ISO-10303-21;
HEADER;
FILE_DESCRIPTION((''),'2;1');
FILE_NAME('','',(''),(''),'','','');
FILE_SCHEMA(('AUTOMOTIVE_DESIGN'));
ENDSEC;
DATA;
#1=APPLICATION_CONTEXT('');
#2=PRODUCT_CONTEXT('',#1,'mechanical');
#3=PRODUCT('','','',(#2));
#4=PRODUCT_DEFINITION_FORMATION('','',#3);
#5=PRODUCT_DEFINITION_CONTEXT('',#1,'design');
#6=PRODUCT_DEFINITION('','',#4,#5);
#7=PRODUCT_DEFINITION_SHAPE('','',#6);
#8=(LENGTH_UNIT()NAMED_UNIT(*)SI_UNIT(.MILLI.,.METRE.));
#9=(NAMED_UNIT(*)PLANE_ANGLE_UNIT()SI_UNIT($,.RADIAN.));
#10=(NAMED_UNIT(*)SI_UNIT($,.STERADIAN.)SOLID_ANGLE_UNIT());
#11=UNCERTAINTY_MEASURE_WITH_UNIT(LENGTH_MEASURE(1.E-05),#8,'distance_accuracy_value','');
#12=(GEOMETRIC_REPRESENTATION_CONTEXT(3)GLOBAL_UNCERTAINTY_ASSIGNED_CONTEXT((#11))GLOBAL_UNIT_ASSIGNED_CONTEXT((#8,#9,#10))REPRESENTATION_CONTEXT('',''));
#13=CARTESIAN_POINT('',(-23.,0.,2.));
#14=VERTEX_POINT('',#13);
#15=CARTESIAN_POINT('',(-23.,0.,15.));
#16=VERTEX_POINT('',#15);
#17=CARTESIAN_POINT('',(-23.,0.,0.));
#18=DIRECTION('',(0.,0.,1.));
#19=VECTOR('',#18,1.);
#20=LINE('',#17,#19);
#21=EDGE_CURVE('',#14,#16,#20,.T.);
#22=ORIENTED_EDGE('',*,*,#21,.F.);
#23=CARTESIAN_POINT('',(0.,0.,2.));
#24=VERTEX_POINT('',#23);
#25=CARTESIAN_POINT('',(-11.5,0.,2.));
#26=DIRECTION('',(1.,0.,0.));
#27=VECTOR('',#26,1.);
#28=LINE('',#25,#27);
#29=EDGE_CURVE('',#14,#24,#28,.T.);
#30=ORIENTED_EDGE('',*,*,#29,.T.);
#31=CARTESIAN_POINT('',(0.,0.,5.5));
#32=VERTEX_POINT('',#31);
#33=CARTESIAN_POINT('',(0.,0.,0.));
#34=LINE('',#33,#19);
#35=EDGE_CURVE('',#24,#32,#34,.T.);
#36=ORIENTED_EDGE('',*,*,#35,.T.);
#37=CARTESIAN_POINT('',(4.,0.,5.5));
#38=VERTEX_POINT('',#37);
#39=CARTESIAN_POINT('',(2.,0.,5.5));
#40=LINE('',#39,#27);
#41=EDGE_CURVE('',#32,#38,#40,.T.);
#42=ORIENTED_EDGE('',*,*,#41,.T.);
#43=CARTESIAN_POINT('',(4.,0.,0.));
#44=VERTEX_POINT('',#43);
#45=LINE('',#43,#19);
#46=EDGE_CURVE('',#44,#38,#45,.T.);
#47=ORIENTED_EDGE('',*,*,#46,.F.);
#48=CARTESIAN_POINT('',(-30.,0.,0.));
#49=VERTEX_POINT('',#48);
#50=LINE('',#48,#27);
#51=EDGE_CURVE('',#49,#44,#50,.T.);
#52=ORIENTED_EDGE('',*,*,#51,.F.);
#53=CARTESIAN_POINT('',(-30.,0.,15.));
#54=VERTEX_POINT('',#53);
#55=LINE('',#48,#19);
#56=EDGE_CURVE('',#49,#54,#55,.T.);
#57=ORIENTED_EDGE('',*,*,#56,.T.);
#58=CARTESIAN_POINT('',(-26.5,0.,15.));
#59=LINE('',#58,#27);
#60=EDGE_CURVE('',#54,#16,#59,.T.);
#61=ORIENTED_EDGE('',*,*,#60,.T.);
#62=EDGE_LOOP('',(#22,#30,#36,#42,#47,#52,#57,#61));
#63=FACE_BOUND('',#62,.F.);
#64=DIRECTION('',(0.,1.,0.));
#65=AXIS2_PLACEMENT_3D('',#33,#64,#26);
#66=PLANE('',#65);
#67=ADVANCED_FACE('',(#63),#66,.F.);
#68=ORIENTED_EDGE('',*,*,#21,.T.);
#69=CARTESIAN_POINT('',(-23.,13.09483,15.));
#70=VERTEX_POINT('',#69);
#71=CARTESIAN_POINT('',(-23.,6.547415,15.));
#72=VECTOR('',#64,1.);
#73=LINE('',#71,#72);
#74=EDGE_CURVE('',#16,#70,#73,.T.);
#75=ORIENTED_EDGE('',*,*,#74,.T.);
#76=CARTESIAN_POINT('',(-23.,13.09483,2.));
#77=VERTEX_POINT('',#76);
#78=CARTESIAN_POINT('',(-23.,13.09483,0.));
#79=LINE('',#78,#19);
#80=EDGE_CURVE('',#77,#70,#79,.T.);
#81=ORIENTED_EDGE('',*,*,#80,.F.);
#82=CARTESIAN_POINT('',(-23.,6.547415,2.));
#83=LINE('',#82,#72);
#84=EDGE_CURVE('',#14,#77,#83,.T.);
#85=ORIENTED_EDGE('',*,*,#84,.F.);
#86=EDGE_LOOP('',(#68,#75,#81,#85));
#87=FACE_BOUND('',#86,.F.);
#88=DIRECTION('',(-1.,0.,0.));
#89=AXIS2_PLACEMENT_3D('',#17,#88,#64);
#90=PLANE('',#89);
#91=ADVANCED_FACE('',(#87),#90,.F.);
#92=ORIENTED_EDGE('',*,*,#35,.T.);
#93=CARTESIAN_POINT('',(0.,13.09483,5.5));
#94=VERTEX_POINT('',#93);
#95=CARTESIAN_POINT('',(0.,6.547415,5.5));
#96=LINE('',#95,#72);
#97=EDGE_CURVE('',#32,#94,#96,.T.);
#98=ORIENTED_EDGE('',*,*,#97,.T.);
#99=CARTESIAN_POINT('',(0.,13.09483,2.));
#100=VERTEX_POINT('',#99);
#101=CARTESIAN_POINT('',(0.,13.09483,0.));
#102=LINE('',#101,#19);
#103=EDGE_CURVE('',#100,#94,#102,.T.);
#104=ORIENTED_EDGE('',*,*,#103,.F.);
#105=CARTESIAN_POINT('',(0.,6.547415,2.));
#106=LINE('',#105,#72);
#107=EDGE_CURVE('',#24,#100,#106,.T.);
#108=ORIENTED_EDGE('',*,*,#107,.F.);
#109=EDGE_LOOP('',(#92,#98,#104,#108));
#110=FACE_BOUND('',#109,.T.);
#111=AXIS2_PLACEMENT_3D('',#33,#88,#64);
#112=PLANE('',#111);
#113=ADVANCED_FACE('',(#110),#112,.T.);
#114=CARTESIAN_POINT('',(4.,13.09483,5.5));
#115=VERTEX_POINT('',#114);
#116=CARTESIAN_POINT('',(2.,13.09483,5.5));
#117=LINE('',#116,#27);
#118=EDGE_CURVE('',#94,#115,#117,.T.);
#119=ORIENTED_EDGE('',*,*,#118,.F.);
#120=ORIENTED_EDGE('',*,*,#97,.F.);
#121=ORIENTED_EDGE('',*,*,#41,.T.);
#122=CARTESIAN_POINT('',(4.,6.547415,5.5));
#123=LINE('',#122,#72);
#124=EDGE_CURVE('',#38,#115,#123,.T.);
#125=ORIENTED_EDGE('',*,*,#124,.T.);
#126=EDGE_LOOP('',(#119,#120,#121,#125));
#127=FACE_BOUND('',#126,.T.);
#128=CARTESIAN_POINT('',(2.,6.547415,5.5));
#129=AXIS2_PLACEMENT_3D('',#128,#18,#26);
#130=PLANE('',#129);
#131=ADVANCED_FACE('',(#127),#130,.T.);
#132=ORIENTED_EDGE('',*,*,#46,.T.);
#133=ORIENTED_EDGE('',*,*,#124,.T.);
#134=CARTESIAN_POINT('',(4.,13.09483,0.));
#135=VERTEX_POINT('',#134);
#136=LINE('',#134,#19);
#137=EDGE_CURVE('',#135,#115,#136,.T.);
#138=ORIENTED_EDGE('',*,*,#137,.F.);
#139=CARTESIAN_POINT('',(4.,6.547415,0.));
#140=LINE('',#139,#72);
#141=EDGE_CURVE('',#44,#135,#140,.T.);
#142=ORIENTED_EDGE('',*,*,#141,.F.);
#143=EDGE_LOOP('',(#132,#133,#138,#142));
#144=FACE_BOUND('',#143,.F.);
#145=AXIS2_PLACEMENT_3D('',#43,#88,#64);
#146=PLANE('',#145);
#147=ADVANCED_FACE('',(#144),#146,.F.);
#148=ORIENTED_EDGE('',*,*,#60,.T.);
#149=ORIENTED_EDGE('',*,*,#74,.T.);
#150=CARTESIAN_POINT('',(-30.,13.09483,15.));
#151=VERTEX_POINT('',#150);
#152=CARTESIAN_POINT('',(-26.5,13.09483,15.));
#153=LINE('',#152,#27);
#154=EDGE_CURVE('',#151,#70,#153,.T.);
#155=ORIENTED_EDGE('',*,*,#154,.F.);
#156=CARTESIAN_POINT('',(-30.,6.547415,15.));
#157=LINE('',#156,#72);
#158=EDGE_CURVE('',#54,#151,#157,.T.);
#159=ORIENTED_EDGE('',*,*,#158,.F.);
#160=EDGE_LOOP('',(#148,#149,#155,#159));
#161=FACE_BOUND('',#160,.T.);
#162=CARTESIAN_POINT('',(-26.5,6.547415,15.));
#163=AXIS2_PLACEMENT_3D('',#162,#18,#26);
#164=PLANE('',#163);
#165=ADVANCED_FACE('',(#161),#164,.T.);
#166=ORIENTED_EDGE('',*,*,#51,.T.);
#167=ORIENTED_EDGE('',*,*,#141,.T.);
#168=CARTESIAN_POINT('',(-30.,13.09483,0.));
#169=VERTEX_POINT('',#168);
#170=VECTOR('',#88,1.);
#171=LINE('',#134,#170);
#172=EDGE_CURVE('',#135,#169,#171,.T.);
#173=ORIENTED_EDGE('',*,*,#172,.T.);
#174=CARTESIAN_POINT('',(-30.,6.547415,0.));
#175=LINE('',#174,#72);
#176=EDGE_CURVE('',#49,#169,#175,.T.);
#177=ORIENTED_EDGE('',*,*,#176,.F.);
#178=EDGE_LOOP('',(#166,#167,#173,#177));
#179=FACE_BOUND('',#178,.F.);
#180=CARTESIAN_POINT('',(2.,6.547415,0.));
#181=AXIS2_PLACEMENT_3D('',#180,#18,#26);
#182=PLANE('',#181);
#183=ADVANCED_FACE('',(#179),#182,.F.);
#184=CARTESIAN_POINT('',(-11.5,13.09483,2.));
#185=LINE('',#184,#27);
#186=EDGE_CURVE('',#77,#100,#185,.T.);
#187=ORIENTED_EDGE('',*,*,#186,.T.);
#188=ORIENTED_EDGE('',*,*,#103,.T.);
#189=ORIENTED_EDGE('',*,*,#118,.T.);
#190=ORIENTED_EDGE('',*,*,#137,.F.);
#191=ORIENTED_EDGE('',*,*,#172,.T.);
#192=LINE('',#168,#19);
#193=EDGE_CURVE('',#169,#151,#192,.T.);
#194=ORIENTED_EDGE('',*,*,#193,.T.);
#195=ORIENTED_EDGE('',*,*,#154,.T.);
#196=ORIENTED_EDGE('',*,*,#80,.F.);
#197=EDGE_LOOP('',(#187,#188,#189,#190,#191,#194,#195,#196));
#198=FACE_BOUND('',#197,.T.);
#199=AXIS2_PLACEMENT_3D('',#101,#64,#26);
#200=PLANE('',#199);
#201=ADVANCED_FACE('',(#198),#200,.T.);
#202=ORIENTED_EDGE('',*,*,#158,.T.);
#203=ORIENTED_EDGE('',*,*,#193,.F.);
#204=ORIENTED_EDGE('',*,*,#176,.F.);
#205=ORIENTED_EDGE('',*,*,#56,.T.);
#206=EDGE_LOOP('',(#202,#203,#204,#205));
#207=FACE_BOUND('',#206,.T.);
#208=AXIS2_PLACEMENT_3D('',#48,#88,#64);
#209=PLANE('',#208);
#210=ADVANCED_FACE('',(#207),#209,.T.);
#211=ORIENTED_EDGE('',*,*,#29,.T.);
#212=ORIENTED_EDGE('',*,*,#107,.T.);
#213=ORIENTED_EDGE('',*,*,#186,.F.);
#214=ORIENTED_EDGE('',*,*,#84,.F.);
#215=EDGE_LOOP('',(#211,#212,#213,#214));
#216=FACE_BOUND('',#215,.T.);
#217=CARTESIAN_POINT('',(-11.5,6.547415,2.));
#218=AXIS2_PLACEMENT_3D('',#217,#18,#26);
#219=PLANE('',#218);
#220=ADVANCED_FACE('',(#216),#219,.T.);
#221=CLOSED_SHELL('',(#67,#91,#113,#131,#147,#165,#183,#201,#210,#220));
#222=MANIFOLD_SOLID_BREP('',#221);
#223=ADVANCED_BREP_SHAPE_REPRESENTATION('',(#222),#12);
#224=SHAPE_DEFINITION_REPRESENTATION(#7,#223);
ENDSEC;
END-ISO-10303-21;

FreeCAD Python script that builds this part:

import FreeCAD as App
import Part
import Sketcher

V = App.Vector
Q = App.Units.Quantity


def add_polygon(sketch, points):
    """Adds a closed chain of lines whose ends are joined by coincident constraints."""
    first, n = sketch.GeometryCount, len(points)
    for a, b in zip(points, points[1:] + points[:1]):
        sketch.addGeometry(Part.LineSegment(App.Vector(*a, 0), App.Vector(*b, 0)), False)
    for i in range(n):
        sketch.addConstraint(Sketcher.Constraint("Coincident", first + i, 2, first + (i + 1) % n, 1))

doc = App.newDocument("Part")
body = doc.addObject("PartDesign::Body", "Body")

sketch1 = body.newObject("Sketcher::SketchObject", "Sketch")
sketch1.AttachmentSupport = (doc.getObject("XY_Plane"), [""])
sketch1.MapMode = "FlatFace"
add_polygon(sketch1, [(-30, 13), (-30, 0), (-23, 0), (-23, 13)])
sketch1.addConstraint(Sketcher.Constraint("Vertical", 0))
sketch1.addConstraint(Sketcher.Constraint("Horizontal", 1))
sketch1.addConstraint(Sketcher.Constraint("Vertical", 2))
sketch1.addConstraint(Sketcher.Constraint("Horizontal", 3))
sketch1.addConstraint(Sketcher.Constraint("PointOnObject", 0, 2, -1))
sketch1.addConstraint(Sketcher.Constraint("DistanceX", 1, 1, 1, 2, Q("7 mm")))
sketch1.addConstraint(Sketcher.Constraint("DistanceX", 0, 2, -1, 1, Q("30 mm")))
sketch1.addConstraint(Sketcher.Constraint("DistanceY", 0, 2, 0, 1, Q("13.09483 mm")))
pad1 = body.newObject("PartDesign::Pad", "Pad")
pad1.Profile = sketch1
pad1.Length = 15

sketch2 = body.newObject("Sketcher::SketchObject", "Sketch001")
sketch2.AttachmentSupport = (doc.getObject("XY_Plane"), [""])
sketch2.MapMode = "FlatFace"
add_polygon(sketch2, [(-23, 13), (-23, 0), (0, 0), (0, 13)])
sketch2.addConstraint(Sketcher.Constraint("Vertical", 0))
sketch2.addConstraint(Sketcher.Constraint("Horizontal", 1))
sketch2.addConstraint(Sketcher.Constraint("Vertical", 2))
sketch2.addConstraint(Sketcher.Constraint("Horizontal", 3))
sketch2.addConstraint(Sketcher.Constraint("Coincident", 1, 2, -1, 1))
sketch2.addConstraint(Sketcher.Constraint("DistanceX", 1, 1, 1, 2, Q("23 mm")))
sketch2.addConstraint(Sketcher.Constraint("DistanceY", 0, 2, 0, 1, Q("13.09483 mm")))
pad2 = body.newObject("PartDesign::Pad", "Pad001")
pad2.Profile = sketch2
pad2.Length = 2

sketch3 = body.newObject("Sketcher::SketchObject", "Sketch002")
sketch3.AttachmentSupport = (doc.getObject("XY_Plane"), [""])
sketch3.MapMode = "FlatFace"
add_polygon(sketch3, [(0, 13.1), (0, 0), (4, 0), (4, 13.1)])
sketch3.addConstraint(Sketcher.Constraint("Vertical", 0))
sketch3.addConstraint(Sketcher.Constraint("Horizontal", 1))
sketch3.addConstraint(Sketcher.Constraint("Vertical", 2))
sketch3.addConstraint(Sketcher.Constraint("Horizontal", 3))
sketch3.addConstraint(Sketcher.Constraint("Coincident", 0, 2, -1, 1))
sketch3.addConstraint(Sketcher.Constraint("DistanceX", 1, 1, 1, 2, Q("4 mm")))
sketch3.addConstraint(Sketcher.Constraint("DistanceY", 0, 2, 0, 1, Q("13.09483 mm")))
pad3 = body.newObject("PartDesign::Pad", "Pad002")
pad3.Profile = sketch3
pad3.Length = 5.5

doc.recompute()
